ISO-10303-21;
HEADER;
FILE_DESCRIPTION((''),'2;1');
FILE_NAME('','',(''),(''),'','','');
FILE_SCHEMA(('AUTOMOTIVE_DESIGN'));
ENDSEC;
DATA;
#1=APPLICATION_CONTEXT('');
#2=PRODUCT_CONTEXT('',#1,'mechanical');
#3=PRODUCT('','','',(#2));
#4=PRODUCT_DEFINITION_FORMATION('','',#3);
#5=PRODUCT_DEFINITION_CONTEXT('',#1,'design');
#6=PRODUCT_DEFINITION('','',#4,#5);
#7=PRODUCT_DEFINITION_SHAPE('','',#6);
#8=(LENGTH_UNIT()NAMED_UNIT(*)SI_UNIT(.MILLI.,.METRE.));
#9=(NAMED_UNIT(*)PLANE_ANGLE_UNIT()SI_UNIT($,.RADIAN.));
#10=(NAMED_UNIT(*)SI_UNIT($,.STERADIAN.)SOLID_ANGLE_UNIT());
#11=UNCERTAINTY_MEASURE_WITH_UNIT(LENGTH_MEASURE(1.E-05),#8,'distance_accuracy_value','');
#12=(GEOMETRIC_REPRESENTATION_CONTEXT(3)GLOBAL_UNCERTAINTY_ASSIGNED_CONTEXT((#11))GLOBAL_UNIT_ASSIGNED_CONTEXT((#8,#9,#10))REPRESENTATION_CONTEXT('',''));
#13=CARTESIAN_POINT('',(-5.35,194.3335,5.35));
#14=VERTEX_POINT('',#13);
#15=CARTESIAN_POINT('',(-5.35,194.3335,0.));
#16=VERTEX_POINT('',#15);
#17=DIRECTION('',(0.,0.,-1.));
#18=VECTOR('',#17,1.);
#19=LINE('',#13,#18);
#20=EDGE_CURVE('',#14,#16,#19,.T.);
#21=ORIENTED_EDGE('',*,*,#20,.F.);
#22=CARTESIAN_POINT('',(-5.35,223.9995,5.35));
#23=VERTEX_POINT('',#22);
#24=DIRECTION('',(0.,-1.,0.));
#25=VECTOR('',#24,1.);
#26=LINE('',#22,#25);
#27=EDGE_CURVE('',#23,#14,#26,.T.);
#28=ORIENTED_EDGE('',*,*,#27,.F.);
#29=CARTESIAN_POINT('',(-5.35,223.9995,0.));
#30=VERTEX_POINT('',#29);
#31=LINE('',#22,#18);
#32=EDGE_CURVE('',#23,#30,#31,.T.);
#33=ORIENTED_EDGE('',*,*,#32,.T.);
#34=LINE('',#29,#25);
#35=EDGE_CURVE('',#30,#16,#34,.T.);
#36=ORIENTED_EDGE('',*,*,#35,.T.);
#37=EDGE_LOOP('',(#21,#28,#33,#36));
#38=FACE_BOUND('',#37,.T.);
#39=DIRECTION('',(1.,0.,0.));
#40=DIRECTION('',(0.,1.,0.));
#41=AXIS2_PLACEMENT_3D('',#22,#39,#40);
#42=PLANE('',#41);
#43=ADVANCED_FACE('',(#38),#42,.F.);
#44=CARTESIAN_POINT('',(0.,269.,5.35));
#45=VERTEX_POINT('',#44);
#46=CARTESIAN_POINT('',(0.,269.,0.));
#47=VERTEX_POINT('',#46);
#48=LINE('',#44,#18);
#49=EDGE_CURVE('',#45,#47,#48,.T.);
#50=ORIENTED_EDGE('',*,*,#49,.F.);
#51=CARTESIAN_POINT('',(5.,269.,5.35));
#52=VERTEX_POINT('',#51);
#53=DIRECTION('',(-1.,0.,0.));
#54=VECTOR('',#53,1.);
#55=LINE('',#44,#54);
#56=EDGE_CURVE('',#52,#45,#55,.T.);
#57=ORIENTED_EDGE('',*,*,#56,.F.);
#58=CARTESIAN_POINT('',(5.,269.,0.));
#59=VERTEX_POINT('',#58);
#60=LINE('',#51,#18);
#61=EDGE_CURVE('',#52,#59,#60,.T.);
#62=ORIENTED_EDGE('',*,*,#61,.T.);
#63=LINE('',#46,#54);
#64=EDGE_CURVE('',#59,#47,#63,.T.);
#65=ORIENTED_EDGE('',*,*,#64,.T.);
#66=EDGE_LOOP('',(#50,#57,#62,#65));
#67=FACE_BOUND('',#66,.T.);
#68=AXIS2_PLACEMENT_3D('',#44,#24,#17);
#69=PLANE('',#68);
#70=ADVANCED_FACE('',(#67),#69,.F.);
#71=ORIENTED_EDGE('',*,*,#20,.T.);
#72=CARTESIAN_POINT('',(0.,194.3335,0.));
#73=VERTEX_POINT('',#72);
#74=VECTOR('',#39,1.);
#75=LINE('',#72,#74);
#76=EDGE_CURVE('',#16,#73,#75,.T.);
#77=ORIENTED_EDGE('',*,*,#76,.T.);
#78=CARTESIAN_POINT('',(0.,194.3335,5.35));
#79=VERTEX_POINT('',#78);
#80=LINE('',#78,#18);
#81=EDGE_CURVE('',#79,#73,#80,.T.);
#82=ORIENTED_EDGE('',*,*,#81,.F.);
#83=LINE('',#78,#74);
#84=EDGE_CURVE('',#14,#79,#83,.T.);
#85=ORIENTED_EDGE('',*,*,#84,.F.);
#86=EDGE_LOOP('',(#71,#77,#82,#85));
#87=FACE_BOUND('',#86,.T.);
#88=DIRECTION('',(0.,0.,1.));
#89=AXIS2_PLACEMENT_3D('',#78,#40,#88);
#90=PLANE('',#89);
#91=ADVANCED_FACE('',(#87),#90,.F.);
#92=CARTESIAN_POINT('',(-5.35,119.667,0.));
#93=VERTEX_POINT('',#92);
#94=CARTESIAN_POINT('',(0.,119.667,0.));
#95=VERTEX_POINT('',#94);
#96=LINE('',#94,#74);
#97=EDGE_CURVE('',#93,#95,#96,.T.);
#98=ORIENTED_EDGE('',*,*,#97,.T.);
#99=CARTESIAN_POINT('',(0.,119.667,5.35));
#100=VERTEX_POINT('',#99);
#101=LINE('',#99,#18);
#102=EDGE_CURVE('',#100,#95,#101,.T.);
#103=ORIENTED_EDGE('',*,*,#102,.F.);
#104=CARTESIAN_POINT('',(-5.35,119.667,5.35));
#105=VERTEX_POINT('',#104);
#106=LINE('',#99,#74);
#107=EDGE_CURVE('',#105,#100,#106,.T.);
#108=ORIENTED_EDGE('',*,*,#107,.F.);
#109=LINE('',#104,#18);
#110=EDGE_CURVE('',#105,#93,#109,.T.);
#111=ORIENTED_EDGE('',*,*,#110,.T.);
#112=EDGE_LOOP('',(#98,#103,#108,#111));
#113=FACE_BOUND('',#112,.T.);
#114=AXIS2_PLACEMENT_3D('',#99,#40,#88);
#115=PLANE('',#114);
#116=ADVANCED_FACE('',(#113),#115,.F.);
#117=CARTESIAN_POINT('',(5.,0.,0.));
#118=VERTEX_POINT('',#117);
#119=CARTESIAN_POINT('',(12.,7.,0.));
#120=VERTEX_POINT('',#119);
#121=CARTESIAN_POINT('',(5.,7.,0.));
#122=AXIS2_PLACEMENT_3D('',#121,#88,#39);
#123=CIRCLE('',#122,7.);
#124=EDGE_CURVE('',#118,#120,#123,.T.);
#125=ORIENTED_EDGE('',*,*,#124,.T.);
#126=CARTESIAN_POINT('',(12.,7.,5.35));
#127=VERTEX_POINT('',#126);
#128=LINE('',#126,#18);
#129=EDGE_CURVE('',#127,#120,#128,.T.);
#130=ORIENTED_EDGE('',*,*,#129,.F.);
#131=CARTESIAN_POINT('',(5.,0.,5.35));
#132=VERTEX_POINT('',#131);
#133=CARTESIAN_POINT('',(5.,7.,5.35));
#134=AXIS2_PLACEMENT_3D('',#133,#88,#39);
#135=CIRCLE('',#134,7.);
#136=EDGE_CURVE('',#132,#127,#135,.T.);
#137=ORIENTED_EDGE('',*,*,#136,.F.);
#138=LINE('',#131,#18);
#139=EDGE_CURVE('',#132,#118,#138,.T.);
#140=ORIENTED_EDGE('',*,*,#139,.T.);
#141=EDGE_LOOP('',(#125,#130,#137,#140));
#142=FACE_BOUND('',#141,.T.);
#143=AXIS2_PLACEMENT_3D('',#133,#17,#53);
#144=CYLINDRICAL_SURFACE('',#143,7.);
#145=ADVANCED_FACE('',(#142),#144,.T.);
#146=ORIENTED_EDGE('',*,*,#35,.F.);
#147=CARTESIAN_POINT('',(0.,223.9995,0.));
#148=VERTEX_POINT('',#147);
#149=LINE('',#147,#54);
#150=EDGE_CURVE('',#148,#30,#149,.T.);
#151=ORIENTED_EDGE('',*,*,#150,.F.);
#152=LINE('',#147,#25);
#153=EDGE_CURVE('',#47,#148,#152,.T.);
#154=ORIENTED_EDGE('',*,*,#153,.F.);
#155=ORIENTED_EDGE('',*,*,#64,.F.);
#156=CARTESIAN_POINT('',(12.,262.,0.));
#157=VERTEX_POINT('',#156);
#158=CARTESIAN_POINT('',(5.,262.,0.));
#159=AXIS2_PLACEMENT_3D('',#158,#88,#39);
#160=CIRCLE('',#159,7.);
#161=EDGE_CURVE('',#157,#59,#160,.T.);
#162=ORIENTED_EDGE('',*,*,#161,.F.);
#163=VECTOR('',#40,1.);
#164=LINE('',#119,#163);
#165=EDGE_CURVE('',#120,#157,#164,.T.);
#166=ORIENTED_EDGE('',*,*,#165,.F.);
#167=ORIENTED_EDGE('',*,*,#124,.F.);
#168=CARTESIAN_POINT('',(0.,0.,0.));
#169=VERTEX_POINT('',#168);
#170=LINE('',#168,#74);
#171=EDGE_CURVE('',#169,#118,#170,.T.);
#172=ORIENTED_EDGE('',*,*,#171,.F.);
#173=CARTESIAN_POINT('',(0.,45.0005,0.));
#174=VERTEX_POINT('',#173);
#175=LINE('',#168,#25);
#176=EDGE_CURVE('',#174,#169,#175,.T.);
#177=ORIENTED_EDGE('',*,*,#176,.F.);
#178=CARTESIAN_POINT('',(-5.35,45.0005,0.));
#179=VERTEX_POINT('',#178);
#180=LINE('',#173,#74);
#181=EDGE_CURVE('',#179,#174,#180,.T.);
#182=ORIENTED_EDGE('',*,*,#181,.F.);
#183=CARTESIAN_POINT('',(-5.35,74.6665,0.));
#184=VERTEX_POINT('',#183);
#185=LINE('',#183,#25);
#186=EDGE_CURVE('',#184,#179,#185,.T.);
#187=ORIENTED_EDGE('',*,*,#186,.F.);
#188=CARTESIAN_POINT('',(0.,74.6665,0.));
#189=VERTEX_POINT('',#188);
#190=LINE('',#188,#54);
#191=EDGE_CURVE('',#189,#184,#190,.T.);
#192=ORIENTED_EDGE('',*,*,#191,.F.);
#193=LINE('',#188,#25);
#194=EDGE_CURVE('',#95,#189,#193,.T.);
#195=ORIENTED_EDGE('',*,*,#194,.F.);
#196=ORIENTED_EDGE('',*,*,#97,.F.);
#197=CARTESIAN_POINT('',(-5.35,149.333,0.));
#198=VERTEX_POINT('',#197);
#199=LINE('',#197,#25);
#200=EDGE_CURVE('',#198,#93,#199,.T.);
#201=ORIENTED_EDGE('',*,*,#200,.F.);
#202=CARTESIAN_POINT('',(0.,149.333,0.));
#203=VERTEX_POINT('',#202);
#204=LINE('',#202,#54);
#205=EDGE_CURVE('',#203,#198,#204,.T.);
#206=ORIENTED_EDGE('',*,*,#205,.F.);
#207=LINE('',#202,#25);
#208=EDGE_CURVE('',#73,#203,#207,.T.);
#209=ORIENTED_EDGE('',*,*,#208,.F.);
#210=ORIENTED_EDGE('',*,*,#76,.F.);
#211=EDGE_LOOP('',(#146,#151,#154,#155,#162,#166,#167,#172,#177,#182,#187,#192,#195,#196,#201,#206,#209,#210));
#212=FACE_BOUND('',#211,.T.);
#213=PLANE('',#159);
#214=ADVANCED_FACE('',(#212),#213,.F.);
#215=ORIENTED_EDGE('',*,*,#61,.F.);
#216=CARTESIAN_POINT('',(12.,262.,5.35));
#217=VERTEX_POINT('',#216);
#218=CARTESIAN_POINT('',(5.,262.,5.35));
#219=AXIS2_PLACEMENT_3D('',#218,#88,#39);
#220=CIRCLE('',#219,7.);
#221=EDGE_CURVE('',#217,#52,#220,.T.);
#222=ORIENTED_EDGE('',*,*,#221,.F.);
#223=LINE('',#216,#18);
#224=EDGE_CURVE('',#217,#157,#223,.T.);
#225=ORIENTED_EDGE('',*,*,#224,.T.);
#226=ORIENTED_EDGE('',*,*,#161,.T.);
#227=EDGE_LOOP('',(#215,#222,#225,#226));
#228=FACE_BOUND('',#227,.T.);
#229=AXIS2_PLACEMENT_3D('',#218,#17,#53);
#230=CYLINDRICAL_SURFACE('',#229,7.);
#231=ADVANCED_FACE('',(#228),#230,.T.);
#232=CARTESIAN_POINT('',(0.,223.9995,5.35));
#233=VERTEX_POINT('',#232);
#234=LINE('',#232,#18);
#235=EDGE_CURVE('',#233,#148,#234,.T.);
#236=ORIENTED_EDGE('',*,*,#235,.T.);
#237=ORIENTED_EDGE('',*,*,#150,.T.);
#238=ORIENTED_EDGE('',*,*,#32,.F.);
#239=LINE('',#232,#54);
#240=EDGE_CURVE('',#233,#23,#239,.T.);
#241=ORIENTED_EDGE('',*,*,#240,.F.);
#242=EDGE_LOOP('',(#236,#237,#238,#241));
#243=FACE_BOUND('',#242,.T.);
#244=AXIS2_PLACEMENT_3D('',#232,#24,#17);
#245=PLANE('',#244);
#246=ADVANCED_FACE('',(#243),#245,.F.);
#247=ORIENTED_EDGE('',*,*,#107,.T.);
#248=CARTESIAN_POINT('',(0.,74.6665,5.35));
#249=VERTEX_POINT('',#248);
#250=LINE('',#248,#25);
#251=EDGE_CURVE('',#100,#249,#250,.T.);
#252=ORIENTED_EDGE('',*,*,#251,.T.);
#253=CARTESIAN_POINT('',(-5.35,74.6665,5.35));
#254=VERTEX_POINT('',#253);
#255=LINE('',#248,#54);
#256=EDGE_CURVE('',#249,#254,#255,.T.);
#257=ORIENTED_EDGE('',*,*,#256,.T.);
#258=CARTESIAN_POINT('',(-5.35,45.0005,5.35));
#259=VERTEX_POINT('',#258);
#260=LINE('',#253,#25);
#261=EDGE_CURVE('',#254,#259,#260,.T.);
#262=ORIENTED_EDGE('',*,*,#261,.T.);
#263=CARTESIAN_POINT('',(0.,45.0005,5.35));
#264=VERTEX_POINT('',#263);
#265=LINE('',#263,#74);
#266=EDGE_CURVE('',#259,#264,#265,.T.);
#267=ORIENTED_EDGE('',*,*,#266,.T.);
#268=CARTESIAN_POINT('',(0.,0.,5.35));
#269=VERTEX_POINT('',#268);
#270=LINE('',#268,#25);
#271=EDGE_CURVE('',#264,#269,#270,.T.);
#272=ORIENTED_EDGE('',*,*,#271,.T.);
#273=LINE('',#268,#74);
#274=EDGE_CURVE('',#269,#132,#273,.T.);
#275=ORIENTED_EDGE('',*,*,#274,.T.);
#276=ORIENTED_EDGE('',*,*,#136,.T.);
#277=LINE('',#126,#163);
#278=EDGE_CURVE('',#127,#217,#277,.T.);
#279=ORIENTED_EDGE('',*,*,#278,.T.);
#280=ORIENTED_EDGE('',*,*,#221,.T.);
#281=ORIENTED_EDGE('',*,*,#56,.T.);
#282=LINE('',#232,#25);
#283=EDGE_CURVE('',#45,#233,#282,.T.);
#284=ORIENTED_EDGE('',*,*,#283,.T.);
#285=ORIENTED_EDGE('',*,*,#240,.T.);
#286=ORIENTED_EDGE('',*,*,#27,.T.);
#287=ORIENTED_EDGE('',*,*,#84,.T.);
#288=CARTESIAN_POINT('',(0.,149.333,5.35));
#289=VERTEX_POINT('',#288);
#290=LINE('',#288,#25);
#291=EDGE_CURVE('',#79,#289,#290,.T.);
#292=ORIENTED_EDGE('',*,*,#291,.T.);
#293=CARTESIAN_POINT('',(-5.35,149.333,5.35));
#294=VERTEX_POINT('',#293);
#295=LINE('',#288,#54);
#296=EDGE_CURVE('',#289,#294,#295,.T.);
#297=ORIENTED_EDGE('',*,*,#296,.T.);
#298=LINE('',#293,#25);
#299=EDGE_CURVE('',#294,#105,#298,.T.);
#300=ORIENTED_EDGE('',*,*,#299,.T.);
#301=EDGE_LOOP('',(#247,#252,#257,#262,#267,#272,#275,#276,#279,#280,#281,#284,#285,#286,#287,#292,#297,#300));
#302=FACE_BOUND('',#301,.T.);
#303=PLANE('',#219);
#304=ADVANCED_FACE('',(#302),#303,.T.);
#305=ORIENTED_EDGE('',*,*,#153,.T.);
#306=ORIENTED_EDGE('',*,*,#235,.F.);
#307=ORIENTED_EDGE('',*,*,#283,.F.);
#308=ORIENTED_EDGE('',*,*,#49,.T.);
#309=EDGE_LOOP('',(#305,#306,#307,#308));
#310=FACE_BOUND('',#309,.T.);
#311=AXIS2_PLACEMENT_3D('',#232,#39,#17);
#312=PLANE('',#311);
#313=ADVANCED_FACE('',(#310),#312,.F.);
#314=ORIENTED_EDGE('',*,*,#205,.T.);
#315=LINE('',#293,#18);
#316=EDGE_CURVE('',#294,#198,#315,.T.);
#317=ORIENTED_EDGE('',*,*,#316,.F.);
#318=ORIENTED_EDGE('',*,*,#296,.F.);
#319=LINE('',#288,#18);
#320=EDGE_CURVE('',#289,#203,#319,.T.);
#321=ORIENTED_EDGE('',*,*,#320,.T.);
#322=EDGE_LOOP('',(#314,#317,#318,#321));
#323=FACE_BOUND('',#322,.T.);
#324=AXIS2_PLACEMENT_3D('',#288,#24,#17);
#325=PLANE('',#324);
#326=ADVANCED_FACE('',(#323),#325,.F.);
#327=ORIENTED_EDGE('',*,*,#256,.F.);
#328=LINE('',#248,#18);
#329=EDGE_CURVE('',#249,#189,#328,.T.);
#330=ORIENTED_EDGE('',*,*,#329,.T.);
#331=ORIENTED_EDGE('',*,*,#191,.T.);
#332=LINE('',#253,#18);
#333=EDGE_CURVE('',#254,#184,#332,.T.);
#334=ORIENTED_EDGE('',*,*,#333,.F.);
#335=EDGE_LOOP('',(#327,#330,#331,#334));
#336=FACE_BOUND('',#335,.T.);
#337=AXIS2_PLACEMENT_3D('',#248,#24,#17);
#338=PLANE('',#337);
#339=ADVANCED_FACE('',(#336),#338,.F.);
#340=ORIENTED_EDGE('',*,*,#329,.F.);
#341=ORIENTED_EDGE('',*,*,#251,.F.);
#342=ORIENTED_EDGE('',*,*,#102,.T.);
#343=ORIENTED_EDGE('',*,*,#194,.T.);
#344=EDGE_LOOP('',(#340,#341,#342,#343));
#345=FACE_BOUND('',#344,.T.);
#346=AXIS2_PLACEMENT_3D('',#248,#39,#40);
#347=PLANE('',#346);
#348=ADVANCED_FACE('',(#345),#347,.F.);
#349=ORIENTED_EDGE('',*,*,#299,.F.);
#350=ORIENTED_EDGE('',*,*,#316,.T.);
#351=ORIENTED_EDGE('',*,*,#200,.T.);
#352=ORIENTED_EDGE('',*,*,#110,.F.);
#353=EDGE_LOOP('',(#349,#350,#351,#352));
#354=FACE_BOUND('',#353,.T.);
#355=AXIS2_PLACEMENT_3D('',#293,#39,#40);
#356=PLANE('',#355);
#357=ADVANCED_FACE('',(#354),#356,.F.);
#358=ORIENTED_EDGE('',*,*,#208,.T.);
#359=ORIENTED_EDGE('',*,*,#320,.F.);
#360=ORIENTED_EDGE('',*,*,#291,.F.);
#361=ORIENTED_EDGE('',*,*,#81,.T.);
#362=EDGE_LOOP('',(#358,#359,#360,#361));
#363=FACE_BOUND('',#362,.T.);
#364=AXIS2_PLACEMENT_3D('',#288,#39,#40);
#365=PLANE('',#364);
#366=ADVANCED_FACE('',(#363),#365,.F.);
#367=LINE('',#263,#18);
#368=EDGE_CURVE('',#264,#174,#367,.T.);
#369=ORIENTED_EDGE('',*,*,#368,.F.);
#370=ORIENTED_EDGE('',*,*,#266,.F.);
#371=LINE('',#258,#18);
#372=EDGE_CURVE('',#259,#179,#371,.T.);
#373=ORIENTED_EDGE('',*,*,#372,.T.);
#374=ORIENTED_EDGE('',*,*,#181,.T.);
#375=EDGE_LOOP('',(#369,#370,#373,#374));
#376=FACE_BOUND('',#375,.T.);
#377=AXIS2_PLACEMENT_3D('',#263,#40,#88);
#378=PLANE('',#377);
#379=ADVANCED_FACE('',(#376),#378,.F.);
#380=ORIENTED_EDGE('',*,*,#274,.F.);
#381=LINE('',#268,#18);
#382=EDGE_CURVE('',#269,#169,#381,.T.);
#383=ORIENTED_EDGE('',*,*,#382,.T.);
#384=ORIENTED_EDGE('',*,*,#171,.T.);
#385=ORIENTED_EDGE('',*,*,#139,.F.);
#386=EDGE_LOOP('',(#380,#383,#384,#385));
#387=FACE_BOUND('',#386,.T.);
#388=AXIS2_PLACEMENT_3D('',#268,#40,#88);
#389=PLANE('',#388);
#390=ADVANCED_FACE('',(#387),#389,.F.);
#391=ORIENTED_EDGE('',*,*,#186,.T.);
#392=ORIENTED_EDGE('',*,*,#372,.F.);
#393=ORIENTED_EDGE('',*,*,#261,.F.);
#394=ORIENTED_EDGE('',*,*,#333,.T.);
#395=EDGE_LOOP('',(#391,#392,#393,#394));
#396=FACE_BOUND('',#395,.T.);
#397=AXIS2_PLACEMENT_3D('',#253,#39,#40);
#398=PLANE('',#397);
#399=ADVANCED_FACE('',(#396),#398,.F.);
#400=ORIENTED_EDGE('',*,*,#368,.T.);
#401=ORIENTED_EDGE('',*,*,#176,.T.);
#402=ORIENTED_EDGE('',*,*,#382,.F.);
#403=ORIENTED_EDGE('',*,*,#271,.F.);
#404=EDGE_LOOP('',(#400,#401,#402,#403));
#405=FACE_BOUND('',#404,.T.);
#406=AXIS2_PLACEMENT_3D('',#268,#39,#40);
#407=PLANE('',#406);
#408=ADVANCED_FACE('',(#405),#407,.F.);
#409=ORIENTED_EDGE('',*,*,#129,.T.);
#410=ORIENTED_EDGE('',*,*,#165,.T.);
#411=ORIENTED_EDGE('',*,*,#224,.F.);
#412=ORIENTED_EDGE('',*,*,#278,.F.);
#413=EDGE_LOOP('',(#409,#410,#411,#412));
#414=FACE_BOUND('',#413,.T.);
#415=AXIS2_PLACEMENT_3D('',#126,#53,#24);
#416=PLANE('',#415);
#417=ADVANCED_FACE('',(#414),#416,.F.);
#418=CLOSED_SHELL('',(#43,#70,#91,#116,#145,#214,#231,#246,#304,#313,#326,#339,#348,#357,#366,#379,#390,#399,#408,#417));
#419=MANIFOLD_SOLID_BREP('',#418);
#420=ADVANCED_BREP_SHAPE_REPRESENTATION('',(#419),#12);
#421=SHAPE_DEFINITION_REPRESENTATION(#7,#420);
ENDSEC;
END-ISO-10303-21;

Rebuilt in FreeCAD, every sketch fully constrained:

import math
import FreeCAD as App
import Part
import Sketcher
from FreeCAD import Vector
Q = App.Units.Quantity

doc = App.newDocument("Part")
body = doc.addObject("PartDesign::Body", "Body")

sketch1 = doc.addObject("Sketcher::SketchObject", "Sketch")
body.addObject(sketch1)
sketch1.AttachmentSupport = (doc.XY_Plane, [""])
sketch1.MapMode = "FlatFace"
sketch1.addGeometry([
    Part.LineSegment(Vector(0, 194.3335, 0), Vector(0, 149.333, 0)),
    Part.LineSegment(Vector(0, 149.333, 0), Vector(-5.35, 149.333, 0)),
    Part.LineSegment(Vector(-5.35, 149.333, 0), Vector(-5.35, 119.667, 0)),
    Part.LineSegment(Vector(-5.35, 119.667, 0), Vector(0, 119.667, 0)),
    Part.LineSegment(Vector(0, 119.667, 0), Vector(0, 74.6665, 0)),
    Part.LineSegment(Vector(0, 74.6665, 0), Vector(-5.35, 74.6665, 0)),
    Part.LineSegment(Vector(-5.35, 74.6665, 0), Vector(-5.35, 45.0005, 0)),
    Part.LineSegment(Vector(-5.35, 45.0005, 0), Vector(0, 45.0005, 0)),
    Part.LineSegment(Vector(0, 45.0005, 0), Vector(0, 0, 0)),
    Part.LineSegment(Vector(0, 0, 0), Vector(5, 0, 0)),
    Part.ArcOfCircle(Part.Circle(Vector(5, 7, 0), Vector(0, 0, 1), 7), math.radians(-90), math.radians(0)),
    Part.LineSegment(Vector(12, 7, 0), Vector(12, 262, 0)),
    Part.ArcOfCircle(Part.Circle(Vector(5, 262, 0), Vector(0, 0, 1), 7), math.radians(0), math.radians(90)),
    Part.LineSegment(Vector(5, 269, 0), Vector(0, 269, 0)),
    Part.LineSegment(Vector(0, 269, 0), Vector(0, 223.9995, 0)),
    Part.LineSegment(Vector(0, 223.9995, 0), Vector(-5.35, 223.9995, 0)),
    Part.LineSegment(Vector(-5.35, 223.9995, 0), Vector(-5.35, 194.3335, 0)),
    Part.LineSegment(Vector(-5.35, 194.3335, 0), Vector(0, 194.3335, 0)),
], False)
sketch1.addConstraint([
    Sketcher.Constraint("Coincident", 0, 2, 1, 1),
    Sketcher.Constraint("Coincident", 1, 2, 2, 1),
    Sketcher.Constraint("Coincident", 2, 2, 3, 1),
    Sketcher.Constraint("Coincident", 3, 2, 4, 1),
    Sketcher.Constraint("Coincident", 4, 2, 5, 1),
    Sketcher.Constraint("Coincident", 5, 2, 6, 1),
    Sketcher.Constraint("Coincident", 6, 2, 7, 1),
    Sketcher.Constraint("Coincident", 7, 2, 8, 1),
    Sketcher.Constraint("Coincident", 8, 2, 9, 1),
    Sketcher.Constraint("Tangent", 9, 2, 10, 1),
    Sketcher.Constraint("Tangent", 10, 2, 11, 1),
    Sketcher.Constraint("Tangent", 11, 2, 12, 1),
    Sketcher.Constraint("Tangent", 12, 2, 13, 1),
    Sketcher.Constraint("Coincident", 13, 2, 14, 1),
    Sketcher.Constraint("Coincident", 14, 2, 15, 1),
    Sketcher.Constraint("Coincident", 15, 2, 16, 1),
    Sketcher.Constraint("Coincident", 16, 2, 17, 1),
    Sketcher.Constraint("Coincident", 17, 2, 0, 1),
    Sketcher.Constraint("Vertical", 0),
    Sketcher.Constraint("Horizontal", 1),
    Sketcher.Constraint("Vertical", 2),
    Sketcher.Constraint("Horizontal", 3),
    Sketcher.Constraint("Vertical", 4),
    Sketcher.Constraint("Horizontal", 5),
    Sketcher.Constraint("Vertical", 6),
    Sketcher.Constraint("Horizontal", 7),
    Sketcher.Constraint("Vertical", 8),
    Sketcher.Constraint("Horizontal", 9),
    Sketcher.Constraint("Vertical", 11),
    Sketcher.Constraint("Horizontal", 13),
    Sketcher.Constraint("Vertical", 14),
    Sketcher.Constraint("Horizontal", 15),
    Sketcher.Constraint("Vertical", 16),
    Sketcher.Constraint("Horizontal", 17),
    Sketcher.Constraint("Coincident", 8, 2, -1, 1),
    Sketcher.Constraint("Equal", 10, 12),
    Sketcher.Constraint("PointOnObject", 0, 2, -2),
    Sketcher.Constraint("PointOnObject", 3, 2, -2),
    Sketcher.Constraint("PointOnObject", 13, 2, -2),
    Sketcher.Constraint("Vertical", 2, 2, 5, 2),
    Sketcher.Constraint("Vertical", 6, 2, 15, 2),
    Sketcher.Constraint("Equal", 0, 4),
    Sketcher.Constraint("Equal", 2, 6),
    Sketcher.Constraint("Equal", 4, 8),
    Sketcher.Constraint("Equal", 8, 14),
    Sketcher.Constraint("Equal", 6, 16),
    Sketcher.Constraint("Radius", 10, Q("7 mm")),
    Sketcher.Constraint("DistanceX", 9, 1, 9, 2, Q("5 mm")),
    Sketcher.Constraint("DistanceY", 11, 1, 11, 2, Q("255 mm")),
    Sketcher.Constraint("DistanceX", 1, 2, 1, 1, Q("5.35 mm")),
    Sketcher.Constraint("DistanceY", 2, 2, 2, 1, Q("29.666 mm")),
])
pad1 = doc.addObject("PartDesign::Pad", "Pad")
body.addObject(pad1)
pad1.Profile = sketch1
pad1.Length = 5.35

doc.recompute()
